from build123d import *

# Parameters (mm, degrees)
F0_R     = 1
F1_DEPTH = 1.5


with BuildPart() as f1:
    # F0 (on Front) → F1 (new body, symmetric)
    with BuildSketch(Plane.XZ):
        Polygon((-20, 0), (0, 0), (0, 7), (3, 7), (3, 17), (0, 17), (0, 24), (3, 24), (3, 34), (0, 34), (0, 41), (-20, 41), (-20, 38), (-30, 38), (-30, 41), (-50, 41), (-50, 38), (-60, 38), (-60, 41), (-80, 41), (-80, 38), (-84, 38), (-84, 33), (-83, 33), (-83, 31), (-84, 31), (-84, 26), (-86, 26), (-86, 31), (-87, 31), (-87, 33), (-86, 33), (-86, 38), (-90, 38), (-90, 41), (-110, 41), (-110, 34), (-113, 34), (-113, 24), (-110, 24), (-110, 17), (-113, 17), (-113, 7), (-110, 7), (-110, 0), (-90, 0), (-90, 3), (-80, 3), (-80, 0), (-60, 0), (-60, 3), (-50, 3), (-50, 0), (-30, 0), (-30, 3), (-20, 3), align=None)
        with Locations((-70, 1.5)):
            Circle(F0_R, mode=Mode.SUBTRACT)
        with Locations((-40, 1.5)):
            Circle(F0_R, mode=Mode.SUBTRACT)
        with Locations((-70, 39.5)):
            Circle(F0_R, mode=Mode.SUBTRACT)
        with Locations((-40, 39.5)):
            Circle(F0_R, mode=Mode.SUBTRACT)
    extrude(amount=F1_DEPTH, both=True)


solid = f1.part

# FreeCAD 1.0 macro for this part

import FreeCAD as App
import Part
import Sketcher

V = App.Vector

doc = App.newDocument("Part")
body = doc.addObject("PartDesign::Body", "Body")

# Sketch on XZ plane
sketch1 = body.newObject("Sketcher::SketchObject", "Sketch")
sketch1.AttachmentSupport = (doc.getObject("XZ_Plane"), [""])
sketch1.MapMode = "FlatFace"
sketch1.addGeometry(Part.LineSegment(V(-20, 0, 0), V(0, 0, 0)), False)
sketch1.addGeometry(Part.LineSegment(V(0, 0, 0), V(0, 7, 0)), False)
sketch1.addGeometry(Part.LineSegment(V(0, 7, 0), V(3, 7, 0)), False)
sketch1.addGeometry(Part.LineSegment(V(3, 7, 0), V(3, 17, 0)), False)
sketch1.addGeometry(Part.LineSegment(V(3, 17, 0), V(0, 17, 0)), False)
sketch1.addGeometry(Part.LineSegment(V(0, 17, 0), V(0, 24, 0)), False)
sketch1.addGeometry(Part.LineSegment(V(0, 24, 0), V(3, 24, 0)), False)
sketch1.addGeometry(Part.LineSegment(V(3, 24, 0), V(3, 34, 0)), False)
sketch1.addGeometry(Part.LineSegment(V(3, 34, 0), V(0, 34, 0)), False)
sketch1.addGeometry(Part.LineSegment(V(0, 34, 0), V(0, 41, 0)), False)
sketch1.addGeometry(Part.LineSegment(V(0, 41, 0), V(-20, 41, 0)), False)
sketch1.addGeometry(Part.LineSegment(V(-20, 41, 0), V(-20, 38, 0)), False)
sketch1.addGeometry(Part.LineSegment(V(-20, 38, 0), V(-30, 38, 0)), False)
sketch1.addGeometry(Part.LineSegment(V(-30, 38, 0), V(-30, 41, 0)), False)
sketch1.addGeometry(Part.LineSegment(V(-30, 41, 0), V(-50, 41, 0)), False)
sketch1.addGeometry(Part.LineSegment(V(-50, 41, 0), V(-50, 38, 0)), False)
sketch1.addGeometry(Part.LineSegment(V(-50, 38, 0), V(-60, 38, 0)), False)
sketch1.addGeometry(Part.LineSegment(V(-60, 38, 0), V(-60, 41, 0)), False)
sketch1.addGeometry(Part.LineSegment(V(-60, 41, 0), V(-80, 41, 0)), False)
sketch1.addGeometry(Part.LineSegment(V(-80, 41, 0), V(-80, 38, 0)), False)
sketch1.addGeometry(Part.LineSegment(V(-80, 38, 0), V(-84, 38, 0)), False)
sketch1.addGeometry(Part.LineSegment(V(-84, 38, 0), V(-84, 33, 0)), False)
sketch1.addGeometry(Part.LineSegment(V(-84, 33, 0), V(-83, 33, 0)), False)
sketch1.addGeometry(Part.LineSegment(V(-83, 33, 0), V(-83, 31, 0)), False)
sketch1.addGeometry(Part.LineSegment(V(-83, 31, 0), V(-84, 31, 0)), False)
sketch1.addGeometry(Part.LineSegment(V(-84, 31, 0), V(-84, 26, 0)), False)
sketch1.addGeometry(Part.LineSegment(V(-84, 26, 0), V(-86, 26, 0)), False)
sketch1.addGeometry(Part.LineSegment(V(-86, 26, 0), V(-86, 31, 0)), False)
sketch1.addGeometry(Part.LineSegment(V(-86, 31, 0), V(-87, 31, 0)), False)
sketch1.addGeometry(Part.LineSegment(V(-87, 31, 0), V(-87, 33, 0)), False)
sketch1.addGeometry(Part.LineSegment(V(-87, 33, 0), V(-86, 33, 0)), False)
sketch1.addGeometry(Part.LineSegment(V(-86, 33, 0), V(-86, 38, 0)), False)
sketch1.addGeometry(Part.LineSegment(V(-86, 38, 0), V(-90, 38, 0)), False)
sketch1.addGeometry(Part.LineSegment(V(-90, 38, 0), V(-90, 41, 0)), False)
sketch1.addGeometry(Part.LineSegment(V(-90, 41, 0), V(-110, 41, 0)), False)
sketch1.addGeometry(Part.LineSegment(V(-110, 41, 0), V(-110, 34, 0)), False)
sketch1.addGeometry(Part.LineSegment(V(-110, 34, 0), V(-113, 34, 0)), False)
sketch1.addGeometry(Part.LineSegment(V(-113, 34, 0), V(-113, 24, 0)), False)
sketch1.addGeometry(Part.LineSegment(V(-113, 24, 0), V(-110, 24, 0)), False)
sketch1.addGeometry(Part.LineSegment(V(-110, 24, 0), V(-110, 17, 0)), False)
sketch1.addGeometry(Part.LineSegment(V(-110, 17, 0), V(-113, 17, 0)), False)
sketch1.addGeometry(Part.LineSegment(V(-113, 17, 0), V(-113, 7, 0)), False)
sketch1.addGeometry(Part.LineSegment(V(-113, 7, 0), V(-110, 7, 0)), False)
sketch1.addGeometry(Part.LineSegment(V(-110, 7, 0), V(-110, 0, 0)), False)
sketch1.addGeometry(Part.LineSegment(V(-110, 0, 0), V(-90, 0, 0)), False)
sketch1.addGeometry(Part.LineSegment(V(-90, 0, 0), V(-90, 3, 0)), False)
sketch1.addGeometry(Part.LineSegment(V(-90, 3, 0), V(-80, 3, 0)), False)
sketch1.addGeometry(Part.LineSegment(V(-80, 3, 0), V(-80, 0, 0)), False)
sketch1.addGeometry(Part.LineSegment(V(-80, 0, 0), V(-60, 0, 0)), False)
sketch1.addGeometry(Part.LineSegment(V(-60, 0, 0), V(-60, 3, 0)), False)
sketch1.addGeometry(Part.LineSegment(V(-60, 3, 0), V(-50, 3, 0)), False)
sketch1.addGeometry(Part.LineSegment(V(-50, 3, 0), V(-50, 0, 0)), False)
sketch1.addGeometry(Part.LineSegment(V(-50, 0, 0), V(-30, 0, 0)), False)
sketch1.addGeometry(Part.LineSegment(V(-30, 0, 0), V(-30, 3, 0)), False)
sketch1.addGeometry(Part.LineSegment(V(-30, 3, 0), V(-20, 3, 0)), False)
sketch1.addGeometry(Part.LineSegment(V(-20, 3, 0), V(-20, 0, 0)), False)
sketch1.addGeometry(Part.Circle(V(-70, 1.5, 0), V(0, 0, 1), 1), False)
sketch1.addGeometry(Part.Circle(V(-40, 1.5, 0), V(0, 0, 1), 1), False)
sketch1.addGeometry(Part.Circle(V(-70, 39.5, 0), V(0, 0, 1), 1), False)
sketch1.addGeometry(Part.Circle(V(-40, 39.5, 0), V(0, 0, 1), 1), False)
sketch1.addConstraint(Sketcher.Constraint("Coincident", 0, 2, 1, 1))
sketch1.addConstraint(Sketcher.Constraint("Coincident", 1, 2, 2, 1))
sketch1.addConstraint(Sketcher.Constraint("Coincident", 2, 2, 3, 1))
sketch1.addConstraint(Sketcher.Constraint("Coincident", 3, 2, 4, 1))
sketch1.addConstraint(Sketcher.Constraint("Coincident", 4, 2, 5, 1))
sketch1.addConstraint(Sketcher.Constraint("Coincident", 5, 2, 6, 1))
sketch1.addConstraint(Sketcher.Constraint("Coincident", 6, 2, 7, 1))
sketch1.addConstraint(Sketcher.Constraint("Coincident", 7, 2, 8, 1))
sketch1.addConstraint(Sketcher.Constraint("Coincident", 8, 2, 9, 1))
sketch1.addConstraint(Sketcher.Constraint("Coincident", 9, 2, 10, 1))
sketch1.addConstraint(Sketcher.Constraint("Coincident", 10, 2, 11, 1))
sketch1.addConstraint(Sketcher.Constraint("Coincident", 11, 2, 12, 1))
sketch1.addConstraint(Sketcher.Constraint("Coincident", 12, 2, 13, 1))
sketch1.addConstraint(Sketcher.Constraint("Coincident", 13, 2, 14, 1))
sketch1.addConstraint(Sketcher.Constraint("Coincident", 14, 2, 15, 1))
sketch1.addConstraint(Sketcher.Constraint("Coincident", 15, 2, 16, 1))
sketch1.addConstraint(Sketcher.Constraint("Coincident", 16, 2, 17, 1))
sketch1.addConstraint(Sketcher.Constraint("Coincident", 17, 2, 18, 1))
sketch1.addConstraint(Sketcher.Constraint("Coincident", 18, 2, 19, 1))
sketch1.addConstraint(Sketcher.Constraint("Coincident", 19, 2, 20, 1))
sketch1.addConstraint(Sketcher.Constraint("Coincident", 20, 2, 21, 1))
sketch1.addConstraint(Sketcher.Constraint("Coincident", 21, 2, 22, 1))
sketch1.addConstraint(Sketcher.Constraint("Coincident", 22, 2, 23, 1))
sketch1.addConstraint(Sketcher.Constraint("Coincident", 23, 2, 24, 1))
sketch1.addConstraint(Sketcher.Constraint("Coincident", 24, 2, 25, 1))
sketch1.addConstraint(Sketcher.Constraint("Coincident", 25, 2, 26, 1))
sketch1.addConstraint(Sketcher.Constraint("Coincident", 26, 2, 27, 1))
sketch1.addConstraint(Sketcher.Constraint("Coincident", 27, 2, 28, 1))
sketch1.addConstraint(Sketcher.Constraint("Coincident", 28, 2, 29, 1))
sketch1.addConstraint(Sketcher.Constraint("Coincident", 29, 2, 30, 1))
sketch1.addConstraint(Sketcher.Constraint("Coincident", 30, 2, 31, 1))
sketch1.addConstraint(Sketcher.Constraint("Coincident", 31, 2, 32, 1))
sketch1.addConstraint(Sketcher.Constraint("Coincident", 32, 2, 33, 1))
sketch1.addConstraint(Sketcher.Constraint("Coincident", 33, 2, 34, 1))
sketch1.addConstraint(Sketcher.Constraint("Coincident", 34, 2, 35, 1))
sketch1.addConstraint(Sketcher.Constraint("Coincident", 35, 2, 36, 1))
sketch1.addConstraint(Sketcher.Constraint("Coincident", 36, 2, 37, 1))
sketch1.addConstraint(Sketcher.Constraint("Coincident", 37, 2, 38, 1))
sketch1.addConstraint(Sketcher.Constraint("Coincident", 38, 2, 39, 1))
sketch1.addConstraint(Sketcher.Constraint("Coincident", 39, 2, 40, 1))
sketch1.addConstraint(Sketcher.Constraint("Coincident", 40, 2, 41, 1))
sketch1.addConstraint(Sketcher.Constraint("Coincident", 41, 2, 42, 1))
sketch1.addConstraint(Sketcher.Constraint("Coincident", 42, 2, 43, 1))
sketch1.addConstraint(Sketcher.Constraint("Coincident", 43, 2, 44, 1))
sketch1.addConstraint(Sketcher.Constraint("Coincident", 44, 2, 45, 1))
sketch1.addConstraint(Sketcher.Constraint("Coincident", 45, 2, 46, 1))
sketch1.addConstraint(Sketcher.Constraint("Coincident", 46, 2, 47, 1))
sketch1.addConstraint(Sketcher.Constraint("Coincident", 47, 2, 48, 1))
sketch1.addConstraint(Sketcher.Constraint("Coincident", 48, 2, 49, 1))
sketch1.addConstraint(Sketcher.Constraint("Coincident", 49, 2, 50, 1))
sketch1.addConstraint(Sketcher.Constraint("Coincident", 50, 2, 51, 1))
sketch1.addConstraint(Sketcher.Constraint("Coincident", 51, 2, 52, 1))
sketch1.addConstraint(Sketcher.Constraint("Coincident", 52, 2, 53, 1))
sketch1.addConstraint(Sketcher.Constraint("Coincident", 53, 2, 54, 1))
sketch1.addConstraint(Sketcher.Constraint("Coincident", 54, 2, 55, 1))
sketch1.addConstraint(Sketcher.Constraint("Coincident", 55, 2, 0, 1))
sketch1.addConstraint(Sketcher.Constraint("Horizontal", 0))
sketch1.addConstraint(Sketcher.Constraint("Vertical", 1))
sketch1.addConstraint(Sketcher.Constraint("Horizontal", 2))
sketch1.addConstraint(Sketcher.Constraint("Vertical", 3))
sketch1.addConstraint(Sketcher.Constraint("Horizontal", 4))
sketch1.addConstraint(Sketcher.Constraint("Vertical", 5))
sketch1.addConstraint(Sketcher.Constraint("Horizontal", 6))
sketch1.addConstraint(Sketcher.Constraint("Vertical", 7))
sketch1.addConstraint(Sketcher.Constraint("Horizontal", 8))
sketch1.addConstraint(Sketcher.Constraint("Vertical", 9))
sketch1.addConstraint(Sketcher.Constraint("Horizontal", 10))
sketch1.addConstraint(Sketcher.Constraint("Vertical", 11))
sketch1.addConstraint(Sketcher.Constraint("Horizontal", 12))
sketch1.addConstraint(Sketcher.Constraint("Vertical", 13))
sketch1.addConstraint(Sketcher.Constraint("Horizontal", 14))
sketch1.addConstraint(Sketcher.Constraint("Vertical", 15))
sketch1.addConstraint(Sketcher.Constraint("Horizontal", 16))
sketch1.addConstraint(Sketcher.Constraint("Vertical", 17))
sketch1.addConstraint(Sketcher.Constraint("Horizontal", 18))
sketch1.addConstraint(Sketcher.Constraint("Vertical", 19))
sketch1.addConstraint(Sketcher.Constraint("Horizontal", 20))
sketch1.addConstraint(Sketcher.Constraint("Vertical", 21))
sketch1.addConstraint(Sketcher.Constraint("Horizontal", 22))
sketch1.addConstraint(Sketcher.Constraint("Vertical", 23))
sketch1.addConstraint(Sketcher.Constraint("Horizontal", 24))
sketch1.addConstraint(Sketcher.Constraint("Vertical", 25))
sketch1.addConstraint(Sketcher.Constraint("Horizontal", 26))
sketch1.addConstraint(Sketcher.Constraint("Vertical", 27))
sketch1.addConstraint(Sketcher.Constraint("Horizontal", 28))
sketch1.addConstraint(Sketcher.Constraint("Vertical", 29))
sketch1.addConstraint(Sketcher.Constraint("Horizontal", 30))
sketch1.addConstraint(Sketcher.Constraint("Vertical", 31))
sketch1.addConstraint(Sketcher.Constraint("Horizontal", 32))
sketch1.addConstraint(Sketcher.Constraint("Vertical", 33))
sketch1.addConstraint(Sketcher.Constraint("Horizontal", 34))
sketch1.addConstraint(Sketcher.Constraint("Vertical", 35))
sketch1.addConstraint(Sketcher.Constraint("Horizontal", 36))
sketch1.addConstraint(Sketcher.Constraint("Vertical", 37))
sketch1.addConstraint(Sketcher.Constraint("Horizontal", 38))
sketch1.addConstraint(Sketcher.Constraint("Vertical", 39))
sketch1.addConstraint(Sketcher.Constraint("Horizontal", 40))
sketch1.addConstraint(Sketcher.Constraint("Vertical", 41))
sketch1.addConstraint(Sketcher.Constraint("Horizontal", 42))
sketch1.addConstraint(Sketcher.Constraint("Vertical", 43))
sketch1.addConstraint(Sketcher.Constraint("Horizontal", 44))
sketch1.addConstraint(Sketcher.Constraint("Vertical", 45))
sketch1.addConstraint(Sketcher.Constraint("Horizontal", 46))
sketch1.addConstraint(Sketcher.Constraint("Vertical", 47))
sketch1.addConstraint(Sketcher.Constraint("Horizontal", 48))
sketch1.addConstraint(Sketcher.Constraint("Vertical", 49))
sketch1.addConstraint(Sketcher.Constraint("Horizontal", 50))
sketch1.addConstraint(Sketcher.Constraint("Vertical", 51))
sketch1.addConstraint(Sketcher.Constraint("Horizontal", 52))
sketch1.addConstraint(Sketcher.Constraint("Vertical", 53))
sketch1.addConstraint(Sketcher.Constraint("Horizontal", 54))
sketch1.addConstraint(Sketcher.Constraint("Vertical", 55))
sketch1.addConstraint(Sketcher.Constraint("Coincident", 0, 2, -1, 1))
sketch1.addConstraint(Sketcher.Constraint("Equal", 56, 57))
sketch1.addConstraint(Sketcher.Constraint("Equal", 57, 58))
sketch1.addConstraint(Sketcher.Constraint("Equal", 58, 59))
sketch1.addConstraint(Sketcher.Constraint("PointOnObject", 4, 2, -2))
sketch1.addConstraint(Sketcher.Constraint("PointOnObject", 8, 2, -2))
sketch1.addConstraint(Sketcher.Constraint("PointOnObject", 43, 2, -1))
sketch1.addConstraint(Sketcher.Constraint("PointOnObject", 47, 2, -1))
sketch1.addConstraint(Sketcher.Constraint("PointOnObject", 51, 2, -1))
sketch1.addConstraint(Sketcher.Constraint("Horizontal", 56, 3, 57, 3))
sketch1.addConstraint(Sketcher.Constraint("Horizontal", 58, 3, 59, 3))
sketch1.addConstraint(Sketcher.Constraint("Horizontal", 10, 2, 13, 2))
sketch1.addConstraint(Sketcher.Constraint("Horizontal", 12, 2, 15, 2))
sketch1.addConstraint(Sketcher.Constraint("Horizontal", 14, 2, 17, 2))
sketch1.addConstraint(Sketcher.Constraint("Horizontal", 16, 2, 19, 2))
sketch1.addConstraint(Sketcher.Constraint("Horizontal", 24, 2, 27, 2))
sketch1.addConstraint(Sketcher.Constraint("Horizontal", 22, 2, 29, 2))
sketch1.addConstraint(Sketcher.Constraint("Horizontal", 20, 2, 31, 2))
sketch1.addConstraint(Sketcher.Constraint("Horizontal", 18, 2, 33, 2))
sketch1.addConstraint(Sketcher.Constraint("Horizontal", 8, 2, 35, 2))
sketch1.addConstraint(Sketcher.Constraint("Horizontal", 6, 2, 37, 2))
sketch1.addConstraint(Sketcher.Constraint("Horizontal", 4, 2, 39, 2))
sketch1.addConstraint(Sketcher.Constraint("Horizontal", 2, 2, 41, 2))
sketch1.addConstraint(Sketcher.Constraint("Horizontal", 46, 2, 49, 2))
sketch1.addConstraint(Sketcher.Constraint("Horizontal", 50, 2, 53, 2))
sketch1.addConstraint(Sketcher.Constraint("Vertical", 56, 3, 58, 3))
sketch1.addConstraint(Sketcher.Constraint("Vertical", 57, 3, 59, 3))
sketch1.addConstraint(Sketcher.Constraint("Vertical", 3, 2, 6, 2))
sketch1.addConstraint(Sketcher.Constraint("Vertical", 21, 2, 24, 2))
sketch1.addConstraint(Sketcher.Constraint("Vertical", 27, 2, 30, 2))
sketch1.addConstraint(Sketcher.Constraint("Vertical", 35, 2, 38, 2))
sketch1.addConstraint(Sketcher.Constraint("Vertical", 37, 2, 40, 2))
sketch1.addConstraint(Sketcher.Constraint("Vertical", 39, 2, 42, 2))
sketch1.addConstraint(Sketcher.Constraint("Vertical", 33, 2, 44, 2))
sketch1.addConstraint(Sketcher.Constraint("Vertical", 19, 2, 46, 2))
sketch1.addConstraint(Sketcher.Constraint("Vertical", 17, 2, 48, 2))
sketch1.addConstraint(Sketcher.Constraint("Vertical", 15, 2, 50, 2))
sketch1.addConstraint(Sketcher.Constraint("Vertical", 13, 2, 52, 2))
sketch1.addConstraint(Sketcher.Constraint("Vertical", 11, 2, 54, 2))
sketch1.addConstraint(Sketcher.Constraint("Equal", 10, 14))
sketch1.addConstraint(Sketcher.Constraint("Equal", 12, 16))
sketch1.addConstraint(Sketcher.Constraint("Equal", 14, 18))
sketch1.addConstraint(Sketcher.Constraint("Equal", 24, 28))
sketch1.addConstraint(Sketcher.Constraint("Equal", 20, 32))
sketch1.addConstraint(Sketcher.Constraint("Equal", 18, 34))
sketch1.addConstraint(Sketcher.Constraint("Equal", 8, 36))
sketch1.addConstraint(Sketcher.Constraint("Equal", 16, 46))
sketch1.addConstraint(Sketcher.Constraint("Equal", 54, 3))
sketch1.addConstraint(Sketcher.Constraint("Equal", 1, 5))
sketch1.addConstraint(Sketcher.Constraint("Equal", 3, 7))
sketch1.addConstraint(Sketcher.Constraint("Equal", 5, 9))
sketch1.addConstraint(Sketcher.Constraint("Equal", 42, 11))
sketch1.addConstraint(Sketcher.Constraint("Equal", 26, 23))
sketch1.addConstraint(Sketcher.Constraint("Equal", 21, 25))
sketch1.addConstraint(Sketcher.Constraint("Equal", 33, 45))
sketch1.addConstraint(Sketcher.Constraint("Diameter", 56, 2.0))
sketch1.addConstraint(Sketcher.Constraint("DistanceX", 0, 1, 0, 2, 20.0))
sketch1.addConstraint(Sketcher.Constraint("DistanceX", 2, 1, 2, 2, 3.0))
sketch1.addConstraint(Sketcher.Constraint("DistanceX", 12, 2, 12, 1, 10.0))
sketch1.addConstraint(Sketcher.Constraint("DistanceX", 20, 2, 20, 1, 4.0))
sketch1.addConstraint(Sketcher.Constraint("DistanceX", 22, 1, 22, 2, 1.0))
sketch1.addConstraint(Sketcher.Constraint("DistanceY", 1, 1, 1, 2, 7.0))
sketch1.addConstraint(Sketcher.Constraint("DistanceY", 21, 2, 21, 1, 5.0))
sketch1.addConstraint(Sketcher.Constraint("DistanceX", 56, 3, -1, 1, 70.0))
sketch1.addConstraint(Sketcher.Constraint("DistanceX", 57, 3, -1, 1, 40.0))
sketch1.addConstraint(Sketcher.Constraint("DistanceY", 56, 3, 58, 3, 38.0))
sketch1.addConstraint(Sketcher.Constraint("DistanceY", -1, 1, 56, 3, 1.5))
pad1 = body.newObject("PartDesign::Pad", "Pad")
pad1.Profile = sketch1
pad1.Length = 3
pad1.Midplane = True

doc.recompute()
